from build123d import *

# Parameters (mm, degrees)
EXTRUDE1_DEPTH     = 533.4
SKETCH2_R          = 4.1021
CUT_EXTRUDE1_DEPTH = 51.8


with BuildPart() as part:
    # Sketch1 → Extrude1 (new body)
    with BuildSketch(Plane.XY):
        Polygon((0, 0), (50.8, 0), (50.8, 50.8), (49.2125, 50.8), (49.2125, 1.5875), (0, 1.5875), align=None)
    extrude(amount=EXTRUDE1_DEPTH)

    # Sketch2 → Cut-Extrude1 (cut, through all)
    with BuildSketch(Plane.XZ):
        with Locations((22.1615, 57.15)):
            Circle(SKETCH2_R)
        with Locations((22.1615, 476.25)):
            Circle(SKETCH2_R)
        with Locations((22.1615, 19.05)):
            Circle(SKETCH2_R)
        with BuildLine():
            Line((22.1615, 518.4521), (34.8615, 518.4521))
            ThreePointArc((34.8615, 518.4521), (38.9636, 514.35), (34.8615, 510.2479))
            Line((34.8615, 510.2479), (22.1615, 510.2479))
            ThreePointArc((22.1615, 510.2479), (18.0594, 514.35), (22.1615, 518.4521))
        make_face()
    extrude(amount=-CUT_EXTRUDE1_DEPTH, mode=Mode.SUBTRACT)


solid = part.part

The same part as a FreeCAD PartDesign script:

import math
import FreeCAD as App
import Part
import Sketcher

V = App.Vector
Q = App.Units.Quantity


def add_polygon(sketch, points):
    """Adds a closed chain of lines whose ends are joined by coincident constraints."""
    first, n = sketch.GeometryCount, len(points)
    for a, b in zip(points, points[1:] + points[:1]):
        sketch.addGeometry(Part.LineSegment(App.Vector(*a, 0), App.Vector(*b, 0)), False)
    for i in range(n):
        sketch.addConstraint(Sketcher.Constraint("Coincident", first + i, 2, first + (i + 1) % n, 1))

doc = App.newDocument("Part")
body = doc.addObject("PartDesign::Body", "Body")

# Sketch on XY plane
sketch1 = body.newObject("Sketcher::SketchObject", "Sketch")
sketch1.AttachmentSupport = (doc.getObject("XY_Plane"), [""])
sketch1.MapMode = "FlatFace"
add_polygon(sketch1, [(0, 0), (50.8, 0), (50.8, 50.8), (49.2, 50.8), (49.2, 1.6), (0, 1.6)])  # lines 0-5
sketch1.addConstraint(Sketcher.Constraint("Horizontal", 0))
sketch1.addConstraint(Sketcher.Constraint("Vertical", 1))
sketch1.addConstraint(Sketcher.Constraint("Horizontal", 2))
sketch1.addConstraint(Sketcher.Constraint("Vertical", 3))
sketch1.addConstraint(Sketcher.Constraint("Horizontal", 4))
sketch1.addConstraint(Sketcher.Constraint("Vertical", 5))
sketch1.addConstraint(Sketcher.Constraint("Coincident", 5, 2, -1, 1))
sketch1.addConstraint(Sketcher.Constraint("Equal", 0, 1))
sketch1.addConstraint(Sketcher.Constraint("Equal", 4, 3))
sketch1.addConstraint(Sketcher.Constraint("DistanceX", 0, 1, 0, 2, Q("2 in")))
sketch1.addConstraint(Sketcher.Constraint("DistanceX", 2, 2, 2, 1, Q("0.0625 in")))
pad1 = body.newObject("PartDesign::Pad", "Pad")
pad1.Profile = sketch1
pad1.Length = Q("21 in")

# Sketch on XZ plane
sketch2 = body.newObject("Sketcher::SketchObject", "Sketch001")
sketch2.AttachmentSupport = (doc.getObject("XZ_Plane"), [""])
sketch2.MapMode = "FlatFace"
sketch2.addGeometry(Part.Circle(V(22.2, 57.1, 0), V(0, 0, 1), 4.1), False)
sketch2.addGeometry(Part.Circle(V(22.2, 476.2, 0), V(0, 0, 1), 4.1), False)
sketch2.addGeometry(Part.Circle(V(22.2, 19.1, 0), V(0, 0, 1), 4.1), False)
sketch2.addGeometry(Part.LineSegment(V(34.9, 518.5, 0), V(22.2, 518.5, 0)), False)
sketch2.addGeometry(Part.ArcOfCircle(Part.Circle(V(22.2, 514.4, 0), V(0, 0, 1), 4.1), math.radians(90), math.radians(270)), False)
sketch2.addGeometry(Part.LineSegment(V(22.2, 510.2, 0), V(34.9, 510.2, 0)), False)
sketch2.addGeometry(Part.ArcOfCircle(Part.Circle(V(34.9, 514.4, 0), V(0, 0, 1), 4.1), math.radians(-90), math.radians(90)), False)
sketch2.addConstraint(Sketcher.Constraint("Tangent", 3, 2, 4, 1))
sketch2.addConstraint(Sketcher.Constraint("Tangent", 4, 2, 5, 1))
sketch2.addConstraint(Sketcher.Constraint("Tangent", 5, 2, 6, 1))
sketch2.addConstraint(Sketcher.Constraint("Tangent", 6, 2, 3, 1))
sketch2.addConstraint(Sketcher.Constraint("Horizontal", 3))
sketch2.addConstraint(Sketcher.Constraint("Horizontal", 5))
sketch2.addConstraint(Sketcher.Constraint("Equal", 0, 1))
sketch2.addConstraint(Sketcher.Constraint("Equal", 1, 2))
sketch2.addConstraint(Sketcher.Constraint("Equal", 2, 4))
sketch2.addConstraint(Sketcher.Constraint("Vertical", 0, 3, 1, 3))
sketch2.addConstraint(Sketcher.Constraint("Vertical", 1, 3, 2, 3))
sketch2.addConstraint(Sketcher.Constraint("Vertical", 2, 3, 4, 3))
sketch2.addConstraint(Sketcher.Constraint("Diameter", 0, Q("0.323 in")))
sketch2.addConstraint(Sketcher.Constraint("DistanceX", 3, 2, 3, 1, Q("0.5 in")))
sketch2.addConstraint(Sketcher.Constraint("DistanceY", 2, 3, 1, 3, Q("18 in")))
sketch2.addConstraint(Sketcher.Constraint("DistanceY", 0, 3, 4, 3, Q("18 in")))
sketch2.addConstraint(Sketcher.Constraint("DistanceY", 0, 3, 1, 3, Q("16.5 in")))
sketch2.addConstraint(Sketcher.Constraint("DistanceY", -1, 1, 0, 3, Q("2.25 in")))
sketch2.addConstraint(Sketcher.Constraint("DistanceX", -1, 1, 0, 3, Q("0.8725 in")))
pocket1 = body.newObject("PartDesign::Pocket", "Pocket")
pocket1.Profile = sketch2
pocket1.Type = "ThroughAll"

doc.recompute()
